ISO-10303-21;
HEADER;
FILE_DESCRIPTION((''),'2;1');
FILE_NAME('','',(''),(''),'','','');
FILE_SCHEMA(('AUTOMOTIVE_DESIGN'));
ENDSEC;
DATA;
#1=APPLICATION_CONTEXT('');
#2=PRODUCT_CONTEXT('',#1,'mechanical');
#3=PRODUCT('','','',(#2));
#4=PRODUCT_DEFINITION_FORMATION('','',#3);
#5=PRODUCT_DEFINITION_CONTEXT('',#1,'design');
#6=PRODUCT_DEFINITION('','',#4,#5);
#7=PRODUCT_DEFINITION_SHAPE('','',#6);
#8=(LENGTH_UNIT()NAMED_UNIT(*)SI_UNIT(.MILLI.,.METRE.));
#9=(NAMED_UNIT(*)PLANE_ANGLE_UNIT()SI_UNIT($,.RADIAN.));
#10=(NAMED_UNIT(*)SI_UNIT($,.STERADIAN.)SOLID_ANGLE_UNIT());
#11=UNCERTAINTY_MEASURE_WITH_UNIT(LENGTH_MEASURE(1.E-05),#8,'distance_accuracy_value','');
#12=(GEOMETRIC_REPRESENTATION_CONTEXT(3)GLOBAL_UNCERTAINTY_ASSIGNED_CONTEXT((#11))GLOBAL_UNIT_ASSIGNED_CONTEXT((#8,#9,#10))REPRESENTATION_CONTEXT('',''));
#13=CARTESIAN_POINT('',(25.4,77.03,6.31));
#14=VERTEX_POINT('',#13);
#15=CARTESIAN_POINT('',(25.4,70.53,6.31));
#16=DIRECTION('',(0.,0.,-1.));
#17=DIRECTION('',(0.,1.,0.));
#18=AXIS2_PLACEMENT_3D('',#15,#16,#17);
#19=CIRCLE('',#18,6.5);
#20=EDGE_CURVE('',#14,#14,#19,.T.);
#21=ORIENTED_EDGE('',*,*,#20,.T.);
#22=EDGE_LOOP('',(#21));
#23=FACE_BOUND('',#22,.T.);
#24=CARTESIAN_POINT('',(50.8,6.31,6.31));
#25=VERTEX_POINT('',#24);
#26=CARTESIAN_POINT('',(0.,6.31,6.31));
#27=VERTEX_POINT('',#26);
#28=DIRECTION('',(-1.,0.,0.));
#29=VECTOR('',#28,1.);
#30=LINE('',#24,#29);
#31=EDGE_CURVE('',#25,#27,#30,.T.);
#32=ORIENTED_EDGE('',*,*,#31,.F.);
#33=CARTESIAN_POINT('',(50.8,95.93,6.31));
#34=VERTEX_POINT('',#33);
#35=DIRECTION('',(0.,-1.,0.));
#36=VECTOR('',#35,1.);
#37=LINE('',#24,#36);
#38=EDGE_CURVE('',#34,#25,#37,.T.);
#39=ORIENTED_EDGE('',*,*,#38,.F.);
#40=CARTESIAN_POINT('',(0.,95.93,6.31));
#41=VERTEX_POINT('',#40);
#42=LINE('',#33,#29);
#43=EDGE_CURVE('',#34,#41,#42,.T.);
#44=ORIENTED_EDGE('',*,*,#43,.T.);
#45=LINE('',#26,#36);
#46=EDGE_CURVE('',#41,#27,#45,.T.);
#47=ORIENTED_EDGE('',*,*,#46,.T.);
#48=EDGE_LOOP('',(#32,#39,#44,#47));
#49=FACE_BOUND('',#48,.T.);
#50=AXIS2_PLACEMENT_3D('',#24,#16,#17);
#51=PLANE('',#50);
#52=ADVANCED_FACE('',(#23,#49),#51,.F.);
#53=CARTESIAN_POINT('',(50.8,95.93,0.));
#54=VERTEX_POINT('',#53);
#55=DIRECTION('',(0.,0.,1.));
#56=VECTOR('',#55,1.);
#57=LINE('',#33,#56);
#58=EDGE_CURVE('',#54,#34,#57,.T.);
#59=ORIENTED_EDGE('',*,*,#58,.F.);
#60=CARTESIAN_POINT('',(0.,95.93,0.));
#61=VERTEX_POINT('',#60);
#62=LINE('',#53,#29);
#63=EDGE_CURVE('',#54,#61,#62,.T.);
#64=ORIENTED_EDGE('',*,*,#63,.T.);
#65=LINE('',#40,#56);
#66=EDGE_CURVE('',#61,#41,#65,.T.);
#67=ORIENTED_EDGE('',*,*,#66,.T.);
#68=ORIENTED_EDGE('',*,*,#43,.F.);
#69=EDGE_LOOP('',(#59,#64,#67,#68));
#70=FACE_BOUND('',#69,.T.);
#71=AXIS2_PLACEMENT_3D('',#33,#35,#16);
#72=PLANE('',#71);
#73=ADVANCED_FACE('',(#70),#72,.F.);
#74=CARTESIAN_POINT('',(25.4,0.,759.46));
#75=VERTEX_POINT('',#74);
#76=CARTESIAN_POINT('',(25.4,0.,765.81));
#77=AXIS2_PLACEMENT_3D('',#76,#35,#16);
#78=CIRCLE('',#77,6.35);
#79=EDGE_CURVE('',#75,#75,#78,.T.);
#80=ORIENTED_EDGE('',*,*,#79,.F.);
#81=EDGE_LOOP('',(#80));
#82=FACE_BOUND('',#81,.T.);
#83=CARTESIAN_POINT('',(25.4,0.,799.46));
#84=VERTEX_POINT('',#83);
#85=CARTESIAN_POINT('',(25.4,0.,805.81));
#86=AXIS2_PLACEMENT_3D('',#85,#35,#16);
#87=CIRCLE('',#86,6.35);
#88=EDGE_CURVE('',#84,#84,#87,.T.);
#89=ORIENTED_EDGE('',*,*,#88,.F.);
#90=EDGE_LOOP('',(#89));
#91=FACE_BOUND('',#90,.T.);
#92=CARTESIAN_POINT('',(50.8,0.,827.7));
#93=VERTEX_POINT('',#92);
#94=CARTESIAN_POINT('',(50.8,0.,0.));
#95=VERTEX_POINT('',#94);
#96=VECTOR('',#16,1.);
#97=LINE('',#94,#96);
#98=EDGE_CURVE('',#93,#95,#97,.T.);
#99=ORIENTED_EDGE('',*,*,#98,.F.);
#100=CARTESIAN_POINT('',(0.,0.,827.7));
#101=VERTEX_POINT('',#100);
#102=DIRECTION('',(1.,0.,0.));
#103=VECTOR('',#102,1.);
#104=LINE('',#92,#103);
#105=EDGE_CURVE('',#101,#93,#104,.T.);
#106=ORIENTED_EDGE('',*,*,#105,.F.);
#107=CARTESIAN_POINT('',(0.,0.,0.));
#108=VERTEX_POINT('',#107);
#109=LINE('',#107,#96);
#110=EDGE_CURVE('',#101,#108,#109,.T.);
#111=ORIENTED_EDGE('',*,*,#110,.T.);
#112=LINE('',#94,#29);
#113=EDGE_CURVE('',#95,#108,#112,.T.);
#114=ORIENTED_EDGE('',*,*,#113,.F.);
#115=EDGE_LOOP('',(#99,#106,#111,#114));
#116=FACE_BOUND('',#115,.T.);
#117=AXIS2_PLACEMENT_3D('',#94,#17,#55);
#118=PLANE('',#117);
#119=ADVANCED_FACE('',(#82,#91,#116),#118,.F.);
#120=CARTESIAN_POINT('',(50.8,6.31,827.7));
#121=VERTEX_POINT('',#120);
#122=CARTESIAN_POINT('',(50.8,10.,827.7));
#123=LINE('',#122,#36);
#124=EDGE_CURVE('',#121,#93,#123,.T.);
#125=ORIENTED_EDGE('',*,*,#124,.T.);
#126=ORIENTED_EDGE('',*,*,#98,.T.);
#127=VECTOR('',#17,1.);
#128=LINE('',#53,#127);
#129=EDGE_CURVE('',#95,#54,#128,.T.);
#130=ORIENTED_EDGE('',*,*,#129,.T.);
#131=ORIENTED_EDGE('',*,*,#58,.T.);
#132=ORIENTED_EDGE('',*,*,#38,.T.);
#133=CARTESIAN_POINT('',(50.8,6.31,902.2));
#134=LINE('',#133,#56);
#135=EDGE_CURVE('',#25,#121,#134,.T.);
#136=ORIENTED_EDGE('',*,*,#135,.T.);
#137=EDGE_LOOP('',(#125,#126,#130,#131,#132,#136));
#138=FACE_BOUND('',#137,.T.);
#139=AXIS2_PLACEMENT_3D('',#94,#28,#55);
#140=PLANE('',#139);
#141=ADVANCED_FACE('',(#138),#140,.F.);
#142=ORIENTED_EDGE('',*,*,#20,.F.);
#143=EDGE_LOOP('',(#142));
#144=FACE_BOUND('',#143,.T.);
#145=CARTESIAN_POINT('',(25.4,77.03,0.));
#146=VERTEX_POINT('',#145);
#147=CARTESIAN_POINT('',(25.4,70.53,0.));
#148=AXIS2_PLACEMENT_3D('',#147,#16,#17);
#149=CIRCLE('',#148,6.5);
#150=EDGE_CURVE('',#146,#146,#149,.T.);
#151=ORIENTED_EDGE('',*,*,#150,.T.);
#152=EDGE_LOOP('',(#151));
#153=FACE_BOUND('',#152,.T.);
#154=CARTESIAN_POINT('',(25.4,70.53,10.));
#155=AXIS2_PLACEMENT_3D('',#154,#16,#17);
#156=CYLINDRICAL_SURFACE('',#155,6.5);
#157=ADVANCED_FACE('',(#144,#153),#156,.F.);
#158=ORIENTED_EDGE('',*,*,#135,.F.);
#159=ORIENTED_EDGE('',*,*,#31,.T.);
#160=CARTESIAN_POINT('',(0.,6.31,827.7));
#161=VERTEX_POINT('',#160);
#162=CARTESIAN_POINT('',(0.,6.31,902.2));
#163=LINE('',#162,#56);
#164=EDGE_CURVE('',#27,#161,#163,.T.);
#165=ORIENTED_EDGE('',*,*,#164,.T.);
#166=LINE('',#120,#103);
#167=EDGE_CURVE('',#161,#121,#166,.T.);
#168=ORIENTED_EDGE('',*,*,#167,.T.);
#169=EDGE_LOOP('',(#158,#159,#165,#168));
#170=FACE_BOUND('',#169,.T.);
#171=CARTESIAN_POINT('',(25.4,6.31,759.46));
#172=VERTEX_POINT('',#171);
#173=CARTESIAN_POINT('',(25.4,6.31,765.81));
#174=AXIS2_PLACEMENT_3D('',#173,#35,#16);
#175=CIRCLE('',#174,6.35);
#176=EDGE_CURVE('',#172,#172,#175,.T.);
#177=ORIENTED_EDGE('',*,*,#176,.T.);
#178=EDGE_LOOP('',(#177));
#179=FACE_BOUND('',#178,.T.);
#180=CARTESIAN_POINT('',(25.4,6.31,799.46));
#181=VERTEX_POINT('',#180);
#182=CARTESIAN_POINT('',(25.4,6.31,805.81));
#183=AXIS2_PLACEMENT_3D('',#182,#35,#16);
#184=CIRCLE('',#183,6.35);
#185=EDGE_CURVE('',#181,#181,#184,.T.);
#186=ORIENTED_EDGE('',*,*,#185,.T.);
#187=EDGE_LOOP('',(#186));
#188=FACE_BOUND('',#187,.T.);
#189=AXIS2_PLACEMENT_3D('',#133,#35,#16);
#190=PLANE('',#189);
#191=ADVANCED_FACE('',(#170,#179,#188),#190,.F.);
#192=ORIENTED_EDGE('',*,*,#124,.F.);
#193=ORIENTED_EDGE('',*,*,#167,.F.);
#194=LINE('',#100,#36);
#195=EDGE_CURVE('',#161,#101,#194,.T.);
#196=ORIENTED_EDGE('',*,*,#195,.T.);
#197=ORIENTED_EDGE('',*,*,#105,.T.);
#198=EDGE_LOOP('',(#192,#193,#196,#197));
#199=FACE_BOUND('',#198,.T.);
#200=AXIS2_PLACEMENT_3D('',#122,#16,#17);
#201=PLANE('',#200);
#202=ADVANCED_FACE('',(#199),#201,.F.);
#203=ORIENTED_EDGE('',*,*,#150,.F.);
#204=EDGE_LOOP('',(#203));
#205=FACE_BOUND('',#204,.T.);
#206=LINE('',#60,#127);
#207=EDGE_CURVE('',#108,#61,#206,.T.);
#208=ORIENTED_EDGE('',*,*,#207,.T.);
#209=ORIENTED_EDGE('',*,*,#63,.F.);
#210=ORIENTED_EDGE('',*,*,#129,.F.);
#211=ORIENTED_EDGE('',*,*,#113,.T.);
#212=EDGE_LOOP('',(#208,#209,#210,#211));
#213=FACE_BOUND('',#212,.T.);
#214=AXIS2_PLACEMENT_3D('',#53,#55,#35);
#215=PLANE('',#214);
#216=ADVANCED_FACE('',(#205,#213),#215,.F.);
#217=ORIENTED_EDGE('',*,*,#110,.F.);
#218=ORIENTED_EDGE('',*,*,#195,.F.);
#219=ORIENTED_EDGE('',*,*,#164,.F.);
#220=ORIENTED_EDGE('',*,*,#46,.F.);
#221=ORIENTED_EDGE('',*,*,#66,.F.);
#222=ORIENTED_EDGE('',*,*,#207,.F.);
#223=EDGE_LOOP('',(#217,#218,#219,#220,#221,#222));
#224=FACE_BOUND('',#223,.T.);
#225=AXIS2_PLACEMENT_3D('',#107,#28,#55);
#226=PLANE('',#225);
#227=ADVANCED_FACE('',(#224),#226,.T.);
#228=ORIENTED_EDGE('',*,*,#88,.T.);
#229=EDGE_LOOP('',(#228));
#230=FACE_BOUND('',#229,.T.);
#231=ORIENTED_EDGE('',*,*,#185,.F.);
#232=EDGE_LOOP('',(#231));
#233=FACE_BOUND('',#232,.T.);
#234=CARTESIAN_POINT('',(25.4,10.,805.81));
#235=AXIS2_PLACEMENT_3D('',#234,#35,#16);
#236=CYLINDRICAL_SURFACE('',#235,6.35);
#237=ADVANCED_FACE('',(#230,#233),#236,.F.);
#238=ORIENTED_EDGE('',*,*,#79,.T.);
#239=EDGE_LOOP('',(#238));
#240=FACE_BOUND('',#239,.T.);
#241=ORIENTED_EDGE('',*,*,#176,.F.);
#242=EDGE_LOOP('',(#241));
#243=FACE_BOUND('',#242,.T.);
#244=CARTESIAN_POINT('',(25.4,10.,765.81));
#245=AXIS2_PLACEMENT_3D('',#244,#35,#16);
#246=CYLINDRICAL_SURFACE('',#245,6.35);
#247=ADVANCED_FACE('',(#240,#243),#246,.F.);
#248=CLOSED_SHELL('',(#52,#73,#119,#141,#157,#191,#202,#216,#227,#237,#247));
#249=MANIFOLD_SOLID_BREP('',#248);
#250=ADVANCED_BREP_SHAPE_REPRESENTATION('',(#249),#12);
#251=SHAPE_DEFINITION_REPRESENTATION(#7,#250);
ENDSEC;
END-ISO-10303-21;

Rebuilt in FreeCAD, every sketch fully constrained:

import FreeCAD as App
import Part
import Sketcher
Q = App.Units.Quantity

doc = App.newDocument("Part")
params = doc.addObject("Spreadsheet::Sheet", "Params")
for row, (alias, value) in enumerate([
    ("sketch1_height", "902.2 mm"),
    ("sketch1_width", "89.62 mm"),
    ("sketch1_width2", "6.31 mm"),
    ("pad1_length", "50.8 mm"),
    ("sketch2_diameter", "13 mm"),
    ("pocket1_length", "10 mm"),
    ("sketch3_diameter", "13 mm"),
    ("pocket2_length", "10 mm"),
    ("sketch4_width", "50.8 mm"),
    ("sketch4_height", "74.5 mm"),
    ("pocket3_length", "10 mm"),
    ("sketch5_diameter", "12.7 mm"),
    ("pocket4_length", "10 mm"),
], start=1):
    params.set(f"A{row}", alias)
    params.set(f"B{row}", "=" + value)
    params.setAlias(f"B{row}", alias)

body = doc.addObject("PartDesign::Body", "Body")

sketch1 = doc.addObject("Sketcher::SketchObject", "Sketch")
body.addObject(sketch1)
sketch1.AttachmentSupport = (doc.YZ_Plane, [""])
sketch1.MapMode = "FlatFace"
sketch1.addGeometry(Part.LineSegment(App.Vector(96, 0, 0), App.Vector(96, 6, 0)), False)
sketch1.addGeometry(Part.LineSegment(App.Vector(96, 6, 0), App.Vector(6, 6, 0)), False)
sketch1.addGeometry(Part.LineSegment(App.Vector(6, 6, 0), App.Vector(6, 902, 0)), False)
sketch1.addGeometry(Part.LineSegment(App.Vector(6, 902, 0), App.Vector(0, 902, 0)), False)
sketch1.addGeometry(Part.LineSegment(App.Vector(0, 902, 0), App.Vector(0, 0, 0)), False)
sketch1.addGeometry(Part.LineSegment(App.Vector(0, 0, 0), App.Vector(96, 0, 0)), False)
sketch1.addConstraint(Sketcher.Constraint("Coincident", 0, 2, 1, 1))
sketch1.addConstraint(Sketcher.Constraint("Coincident", 1, 2, 2, 1))
sketch1.addConstraint(Sketcher.Constraint("Coincident", 2, 2, 3, 1))
sketch1.addConstraint(Sketcher.Constraint("Coincident", 3, 2, 4, 1))
sketch1.addConstraint(Sketcher.Constraint("Coincident", 4, 2, 5, 1))
sketch1.addConstraint(Sketcher.Constraint("Coincident", 5, 2, 0, 1))
sketch1.addConstraint(Sketcher.Constraint("Vertical", 0))
sketch1.addConstraint(Sketcher.Constraint("Horizontal", 1))
sketch1.addConstraint(Sketcher.Constraint("Vertical", 2))
sketch1.addConstraint(Sketcher.Constraint("Horizontal", 3))
sketch1.addConstraint(Sketcher.Constraint("Vertical", 4))
sketch1.addConstraint(Sketcher.Constraint("Horizontal", 5))
sketch1.addConstraint(Sketcher.Constraint("Coincident", 4, 2, -1, 1))
sketch1.addConstraint(Sketcher.Constraint("Equal", 3, 0))
sketch1.addConstraint(Sketcher.Constraint("DistanceY", 4, 2, 4, 1, Q("902.2 mm")))
sketch1.addConstraint(Sketcher.Constraint("DistanceX", 1, 2, 1, 1, Q("89.62 mm")))
sketch1.addConstraint(Sketcher.Constraint("DistanceX", 3, 2, 3, 1, Q("6.31 mm")))
sketch1.setExpression("Constraints[14]", "Params.sketch1_height")
sketch1.setExpression("Constraints[15]", "Params.sketch1_width")
sketch1.setExpression("Constraints[16]", "Params.sketch1_width2")
pad1 = doc.addObject("PartDesign::Pad", "Pad")
body.addObject(pad1)
pad1.Profile = sketch1
pad1.setExpression("Length", "Params.pad1_length")

sketch2 = doc.addObject("Sketcher::SketchObject", "Sketch001")
body.addObject(sketch2)
sketch2.AttachmentSupport = (doc.XZ_Plane, [""])
sketch2.MapMode = "FlatFace"
sketch2.addGeometry(Part.Circle(App.Vector(25, 886, 0), App.Vector(0, 0, 1), 6), False)
sketch2.addGeometry(Part.Circle(App.Vector(25, 855, 0), App.Vector(0, 0, 1), 6), False)
sketch2.addConstraint(Sketcher.Constraint("Equal", 0, 1))
sketch2.addConstraint(Sketcher.Constraint("Vertical", 0, 3, 1, 3))
sketch2.addConstraint(Sketcher.Constraint("Diameter", 0, Q("13 mm")))
sketch2.addConstraint(Sketcher.Constraint("DistanceY", 1, 3, 0, 3, Q("31 mm")))
sketch2.addConstraint(Sketcher.Constraint("DistanceX", -1, 1, 0, 3, Q("25.4 mm")))
sketch2.addConstraint(Sketcher.Constraint("DistanceY", -1, 1, 0, 3, Q("885.7 mm")))
sketch2.setExpression("Constraints[2]", "Params.sketch2_diameter")
pocket1 = doc.addObject("PartDesign::Pocket", "Pocket")
body.addObject(pocket1)
pocket1.Profile = sketch2
pocket1.setExpression("Length", "Params.pocket1_length")

sketch3 = doc.addObject("Sketcher::SketchObject", "Sketch002")
body.addObject(sketch3)
sketch3.AttachmentSupport = (doc.XY_Plane, [""])
sketch3.MapMode = "FlatFace"
sketch3.addGeometry(Part.Circle(App.Vector(25, 71, 0), App.Vector(0, 0, 1), 6), False)
sketch3.addConstraint(Sketcher.Constraint("Diameter", 0, Q("13 mm")))
sketch3.addConstraint(Sketcher.Constraint("DistanceX", -1, 1, 0, 3, Q("25.4 mm")))
sketch3.addConstraint(Sketcher.Constraint("DistanceY", -1, 1, 0, 3, Q("70.53 mm")))
sketch3.setExpression("Constraints[0]", "Params.sketch3_diameter")
pocket2 = doc.addObject("PartDesign::Pocket", "Pocket001")
body.addObject(pocket2)
pocket2.Profile = sketch3
pocket2.setExpression("Length", "Params.pocket2_length")
pocket2.Reversed = True

sketch4 = doc.addObject("Sketcher::SketchObject", "Sketch003")
body.addObject(sketch4)
sketch4.AttachmentSupport = (doc.XZ_Plane, [""])
sketch4.MapMode = "FlatFace"
sketch4.addGeometry(Part.LineSegment(App.Vector(0, 902, 0), App.Vector(0, 828, 0)), False)
sketch4.addGeometry(Part.LineSegment(App.Vector(0, 828, 0), App.Vector(51, 828, 0)), False)
sketch4.addGeometry(Part.LineSegment(App.Vector(51, 828, 0), App.Vector(51, 902, 0)), False)
sketch4.addGeometry(Part.LineSegment(App.Vector(51, 902, 0), App.Vector(0, 902, 0)), False)
sketch4.addConstraint(Sketcher.Constraint("Coincident", 0, 2, 1, 1))
sketch4.addConstraint(Sketcher.Constraint("Coincident", 1, 2, 2, 1))
sketch4.addConstraint(Sketcher.Constraint("Coincident", 2, 2, 3, 1))
sketch4.addConstraint(Sketcher.Constraint("Coincident", 3, 2, 0, 1))
sketch4.addConstraint(Sketcher.Constraint("Vertical", 0))
sketch4.addConstraint(Sketcher.Constraint("Horizontal", 1))
sketch4.addConstraint(Sketcher.Constraint("Vertical", 2))
sketch4.addConstraint(Sketcher.Constraint("Horizontal", 3))
sketch4.addConstraint(Sketcher.Constraint("PointOnObject", 0, 2, -2))
sketch4.addConstraint(Sketcher.Constraint("DistanceX", 1, 1, 1, 2, Q("50.8 mm")))
sketch4.addConstraint(Sketcher.Constraint("DistanceY", 0, 2, 0, 1, Q("74.5 mm")))
sketch4.addConstraint(Sketcher.Constraint("DistanceY", -1, 1, 0, 2, Q("827.7 mm")))
sketch4.setExpression("Constraints[9]", "Params.sketch4_width")
sketch4.setExpression("Constraints[10]", "Params.sketch4_height")
pocket3 = doc.addObject("PartDesign::Pocket", "Pocket002")
body.addObject(pocket3)
pocket3.Profile = sketch4
pocket3.setExpression("Length", "Params.pocket3_length")

sketch5 = doc.addObject("Sketcher::SketchObject", "Sketch004")
body.addObject(sketch5)
sketch5.AttachmentSupport = (doc.XZ_Plane, [""])
sketch5.MapMode = "FlatFace"
sketch5.addGeometry(Part.Circle(App.Vector(25, 766, 0), App.Vector(0, 0, 1), 6), False)
sketch5.addGeometry(Part.Circle(App.Vector(25, 806, 0), App.Vector(0, 0, 1), 6), False)
sketch5.addConstraint(Sketcher.Constraint("Equal", 0, 1))
sketch5.addConstraint(Sketcher.Constraint("Vertical", 0, 3, 1, 3))
sketch5.addConstraint(Sketcher.Constraint("Diameter", 0, Q("12.7 mm")))
sketch5.addConstraint(Sketcher.Constraint("DistanceY", 0, 3, 1, 3, Q("40 mm")))
sketch5.addConstraint(Sketcher.Constraint("DistanceX", -1, 1, 0, 3, Q("25.4 mm")))
sketch5.addConstraint(Sketcher.Constraint("DistanceY", -1, 1, 0, 3, Q("765.81 mm")))
sketch5.setExpression("Constraints[2]", "Params.sketch5_diameter")
pocket4 = doc.addObject("PartDesign::Pocket", "Pocket003")
body.addObject(pocket4)
pocket4.Profile = sketch5
pocket4.setExpression("Length", "Params.pocket4_length")

doc.recompute()
